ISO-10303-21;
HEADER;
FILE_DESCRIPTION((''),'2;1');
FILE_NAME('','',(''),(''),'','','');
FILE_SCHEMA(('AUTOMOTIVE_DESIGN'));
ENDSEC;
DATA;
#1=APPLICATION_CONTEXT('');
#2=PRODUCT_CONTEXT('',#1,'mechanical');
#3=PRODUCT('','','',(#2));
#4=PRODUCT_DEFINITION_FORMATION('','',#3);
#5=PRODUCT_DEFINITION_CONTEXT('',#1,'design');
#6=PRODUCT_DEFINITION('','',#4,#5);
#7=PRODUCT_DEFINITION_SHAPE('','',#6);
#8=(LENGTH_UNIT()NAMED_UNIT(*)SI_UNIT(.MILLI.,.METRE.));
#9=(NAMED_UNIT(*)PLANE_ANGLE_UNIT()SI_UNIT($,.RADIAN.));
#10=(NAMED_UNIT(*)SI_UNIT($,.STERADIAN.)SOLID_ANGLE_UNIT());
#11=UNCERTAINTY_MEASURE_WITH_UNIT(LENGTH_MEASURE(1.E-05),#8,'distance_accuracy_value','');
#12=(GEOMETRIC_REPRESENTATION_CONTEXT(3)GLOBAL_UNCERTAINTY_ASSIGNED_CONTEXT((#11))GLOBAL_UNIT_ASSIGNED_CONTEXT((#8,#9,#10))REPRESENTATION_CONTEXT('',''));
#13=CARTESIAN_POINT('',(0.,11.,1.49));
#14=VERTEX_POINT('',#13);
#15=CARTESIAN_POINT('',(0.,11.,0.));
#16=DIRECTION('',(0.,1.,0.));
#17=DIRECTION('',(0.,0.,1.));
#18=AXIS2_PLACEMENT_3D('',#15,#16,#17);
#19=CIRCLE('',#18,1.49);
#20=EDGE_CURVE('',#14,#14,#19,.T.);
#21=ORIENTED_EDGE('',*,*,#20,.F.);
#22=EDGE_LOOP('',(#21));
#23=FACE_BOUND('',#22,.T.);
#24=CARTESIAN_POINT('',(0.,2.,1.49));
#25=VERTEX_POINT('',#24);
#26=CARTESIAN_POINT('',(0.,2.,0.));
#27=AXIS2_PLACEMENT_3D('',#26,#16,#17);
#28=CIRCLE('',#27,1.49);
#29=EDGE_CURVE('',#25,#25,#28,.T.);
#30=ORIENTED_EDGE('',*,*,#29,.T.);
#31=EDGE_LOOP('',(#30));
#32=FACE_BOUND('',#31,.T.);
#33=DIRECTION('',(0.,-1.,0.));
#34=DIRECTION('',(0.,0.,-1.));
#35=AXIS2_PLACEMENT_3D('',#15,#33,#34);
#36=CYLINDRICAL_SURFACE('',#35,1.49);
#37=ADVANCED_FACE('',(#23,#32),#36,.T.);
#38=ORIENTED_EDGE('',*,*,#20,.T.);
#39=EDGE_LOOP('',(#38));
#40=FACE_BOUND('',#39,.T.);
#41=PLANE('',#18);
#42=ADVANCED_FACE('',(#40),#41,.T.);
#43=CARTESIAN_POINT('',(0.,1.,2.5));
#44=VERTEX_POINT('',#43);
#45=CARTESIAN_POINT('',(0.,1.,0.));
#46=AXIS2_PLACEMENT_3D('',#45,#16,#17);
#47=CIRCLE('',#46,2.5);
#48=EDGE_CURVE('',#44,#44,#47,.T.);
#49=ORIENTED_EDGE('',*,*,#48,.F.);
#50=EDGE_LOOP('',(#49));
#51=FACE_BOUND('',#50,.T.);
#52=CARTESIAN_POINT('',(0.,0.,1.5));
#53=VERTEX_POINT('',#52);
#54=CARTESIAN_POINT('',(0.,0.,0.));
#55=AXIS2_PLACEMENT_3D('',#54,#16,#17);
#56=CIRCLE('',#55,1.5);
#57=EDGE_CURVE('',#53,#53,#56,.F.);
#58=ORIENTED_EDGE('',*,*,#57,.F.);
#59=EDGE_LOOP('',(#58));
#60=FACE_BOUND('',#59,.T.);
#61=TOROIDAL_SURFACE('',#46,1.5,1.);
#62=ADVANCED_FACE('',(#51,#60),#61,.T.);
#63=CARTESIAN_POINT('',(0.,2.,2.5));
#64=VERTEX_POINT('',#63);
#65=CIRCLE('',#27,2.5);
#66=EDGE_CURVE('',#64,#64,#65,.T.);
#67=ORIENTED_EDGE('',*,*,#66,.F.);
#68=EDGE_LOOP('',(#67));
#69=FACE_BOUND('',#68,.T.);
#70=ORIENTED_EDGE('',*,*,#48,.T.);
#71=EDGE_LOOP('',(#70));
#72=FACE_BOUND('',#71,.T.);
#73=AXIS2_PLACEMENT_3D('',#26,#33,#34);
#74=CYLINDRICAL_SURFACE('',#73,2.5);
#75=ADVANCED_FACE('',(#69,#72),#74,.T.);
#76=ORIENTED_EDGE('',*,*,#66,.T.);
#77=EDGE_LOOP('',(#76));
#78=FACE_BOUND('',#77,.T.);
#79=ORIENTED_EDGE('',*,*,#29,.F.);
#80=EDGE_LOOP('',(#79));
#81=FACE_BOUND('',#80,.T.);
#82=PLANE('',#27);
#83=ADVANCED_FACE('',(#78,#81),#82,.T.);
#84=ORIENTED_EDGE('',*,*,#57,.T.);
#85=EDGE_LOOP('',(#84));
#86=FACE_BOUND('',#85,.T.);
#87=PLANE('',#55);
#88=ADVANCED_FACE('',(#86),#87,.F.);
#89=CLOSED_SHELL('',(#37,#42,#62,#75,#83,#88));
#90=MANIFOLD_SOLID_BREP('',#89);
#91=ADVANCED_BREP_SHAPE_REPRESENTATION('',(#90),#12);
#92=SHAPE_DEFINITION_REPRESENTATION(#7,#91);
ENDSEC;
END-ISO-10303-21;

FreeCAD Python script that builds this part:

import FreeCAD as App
import Part
import Sketcher
Q = App.Units.Quantity


def edges_at(feature, points):
    """Names of the edges that pass closest to the given points."""
    edges = feature.Shape.Edges
    near = lambda p: min(range(len(edges)), key=lambda i: edges[i].distToShape(Part.Vertex(*p))[0])
    return sorted({f"Edge{near(p) + 1}" for p in points})

doc = App.newDocument("Part")
params = doc.addObject("Spreadsheet::Sheet", "Params")
for row, (alias, value) in enumerate([
    ("sketch1_diameter", "5 mm"),
    ("pad1_length", "2 mm"),
    ("sketch2_diameter", "2.98 mm"),
    ("pad2_length", "9 mm"),
    ("fillet_radius", "1 mm"),
], start=1):
    params.set(f"A{row}", alias)
    params.set(f"B{row}", "=" + value)
    params.setAlias(f"B{row}", alias)

body = doc.addObject("PartDesign::Body", "Body")

# Sketch on XZ plane
sketch1 = doc.addObject("Sketcher::SketchObject", "Sketch")
body.addObject(sketch1)
sketch1.AttachmentSupport = (doc.XZ_Plane, [""])
sketch1.MapMode = "FlatFace"
sketch1.addGeometry(Part.Circle(App.Vector(0, 0, 0), App.Vector(0, 0, 1), 2.5), False)
sketch1.addConstraint([
    Sketcher.Constraint("Coincident", 0, 3, -1, 1),
    Sketcher.Constraint("Diameter", 0, Q("5 mm")),
])
sketch1.setExpression("Constraints[1]", "Params.sketch1_diameter")
pad1 = doc.addObject("PartDesign::Pad", "Pad")
body.addObject(pad1)
pad1.Profile = sketch1
pad1.setExpression("Length", "Params.pad1_length")
pad1.Reversed = True

# Sketch on XZ plane
sketch2 = doc.addObject("Sketcher::SketchObject", "Sketch001")
body.addObject(sketch2)
sketch2.AttachmentSupport = (doc.XZ_Plane, [""])
sketch2.MapMode = "FlatFace"
sketch2.AttachmentOffset = App.Placement(App.Vector(0, 0, -2), App.Rotation())
sketch2.addGeometry(Part.Circle(App.Vector(0, 0, 0), App.Vector(0, 0, 1), 1.5), False)
sketch2.addConstraint([
    Sketcher.Constraint("Coincident", 0, 3, -1, 1),
    Sketcher.Constraint("Diameter", 0, Q("2.98 mm")),
])
sketch2.setExpression("Constraints[1]", "Params.sketch2_diameter")
pad2 = doc.addObject("PartDesign::Pad", "Pad001")
body.addObject(pad2)
pad2.Profile = sketch2
pad2.setExpression("Length", "Params.pad2_length")
pad2.Reversed = True
doc.recompute()

fillet = doc.addObject("PartDesign::Fillet", "Fillet")
body.addObject(fillet)
fillet.Base = (pad2, edges_at(pad2, [(-2.5, 0, 0)]))
fillet.setExpression("Radius", "Params.fillet_radius")

doc.recompute()
